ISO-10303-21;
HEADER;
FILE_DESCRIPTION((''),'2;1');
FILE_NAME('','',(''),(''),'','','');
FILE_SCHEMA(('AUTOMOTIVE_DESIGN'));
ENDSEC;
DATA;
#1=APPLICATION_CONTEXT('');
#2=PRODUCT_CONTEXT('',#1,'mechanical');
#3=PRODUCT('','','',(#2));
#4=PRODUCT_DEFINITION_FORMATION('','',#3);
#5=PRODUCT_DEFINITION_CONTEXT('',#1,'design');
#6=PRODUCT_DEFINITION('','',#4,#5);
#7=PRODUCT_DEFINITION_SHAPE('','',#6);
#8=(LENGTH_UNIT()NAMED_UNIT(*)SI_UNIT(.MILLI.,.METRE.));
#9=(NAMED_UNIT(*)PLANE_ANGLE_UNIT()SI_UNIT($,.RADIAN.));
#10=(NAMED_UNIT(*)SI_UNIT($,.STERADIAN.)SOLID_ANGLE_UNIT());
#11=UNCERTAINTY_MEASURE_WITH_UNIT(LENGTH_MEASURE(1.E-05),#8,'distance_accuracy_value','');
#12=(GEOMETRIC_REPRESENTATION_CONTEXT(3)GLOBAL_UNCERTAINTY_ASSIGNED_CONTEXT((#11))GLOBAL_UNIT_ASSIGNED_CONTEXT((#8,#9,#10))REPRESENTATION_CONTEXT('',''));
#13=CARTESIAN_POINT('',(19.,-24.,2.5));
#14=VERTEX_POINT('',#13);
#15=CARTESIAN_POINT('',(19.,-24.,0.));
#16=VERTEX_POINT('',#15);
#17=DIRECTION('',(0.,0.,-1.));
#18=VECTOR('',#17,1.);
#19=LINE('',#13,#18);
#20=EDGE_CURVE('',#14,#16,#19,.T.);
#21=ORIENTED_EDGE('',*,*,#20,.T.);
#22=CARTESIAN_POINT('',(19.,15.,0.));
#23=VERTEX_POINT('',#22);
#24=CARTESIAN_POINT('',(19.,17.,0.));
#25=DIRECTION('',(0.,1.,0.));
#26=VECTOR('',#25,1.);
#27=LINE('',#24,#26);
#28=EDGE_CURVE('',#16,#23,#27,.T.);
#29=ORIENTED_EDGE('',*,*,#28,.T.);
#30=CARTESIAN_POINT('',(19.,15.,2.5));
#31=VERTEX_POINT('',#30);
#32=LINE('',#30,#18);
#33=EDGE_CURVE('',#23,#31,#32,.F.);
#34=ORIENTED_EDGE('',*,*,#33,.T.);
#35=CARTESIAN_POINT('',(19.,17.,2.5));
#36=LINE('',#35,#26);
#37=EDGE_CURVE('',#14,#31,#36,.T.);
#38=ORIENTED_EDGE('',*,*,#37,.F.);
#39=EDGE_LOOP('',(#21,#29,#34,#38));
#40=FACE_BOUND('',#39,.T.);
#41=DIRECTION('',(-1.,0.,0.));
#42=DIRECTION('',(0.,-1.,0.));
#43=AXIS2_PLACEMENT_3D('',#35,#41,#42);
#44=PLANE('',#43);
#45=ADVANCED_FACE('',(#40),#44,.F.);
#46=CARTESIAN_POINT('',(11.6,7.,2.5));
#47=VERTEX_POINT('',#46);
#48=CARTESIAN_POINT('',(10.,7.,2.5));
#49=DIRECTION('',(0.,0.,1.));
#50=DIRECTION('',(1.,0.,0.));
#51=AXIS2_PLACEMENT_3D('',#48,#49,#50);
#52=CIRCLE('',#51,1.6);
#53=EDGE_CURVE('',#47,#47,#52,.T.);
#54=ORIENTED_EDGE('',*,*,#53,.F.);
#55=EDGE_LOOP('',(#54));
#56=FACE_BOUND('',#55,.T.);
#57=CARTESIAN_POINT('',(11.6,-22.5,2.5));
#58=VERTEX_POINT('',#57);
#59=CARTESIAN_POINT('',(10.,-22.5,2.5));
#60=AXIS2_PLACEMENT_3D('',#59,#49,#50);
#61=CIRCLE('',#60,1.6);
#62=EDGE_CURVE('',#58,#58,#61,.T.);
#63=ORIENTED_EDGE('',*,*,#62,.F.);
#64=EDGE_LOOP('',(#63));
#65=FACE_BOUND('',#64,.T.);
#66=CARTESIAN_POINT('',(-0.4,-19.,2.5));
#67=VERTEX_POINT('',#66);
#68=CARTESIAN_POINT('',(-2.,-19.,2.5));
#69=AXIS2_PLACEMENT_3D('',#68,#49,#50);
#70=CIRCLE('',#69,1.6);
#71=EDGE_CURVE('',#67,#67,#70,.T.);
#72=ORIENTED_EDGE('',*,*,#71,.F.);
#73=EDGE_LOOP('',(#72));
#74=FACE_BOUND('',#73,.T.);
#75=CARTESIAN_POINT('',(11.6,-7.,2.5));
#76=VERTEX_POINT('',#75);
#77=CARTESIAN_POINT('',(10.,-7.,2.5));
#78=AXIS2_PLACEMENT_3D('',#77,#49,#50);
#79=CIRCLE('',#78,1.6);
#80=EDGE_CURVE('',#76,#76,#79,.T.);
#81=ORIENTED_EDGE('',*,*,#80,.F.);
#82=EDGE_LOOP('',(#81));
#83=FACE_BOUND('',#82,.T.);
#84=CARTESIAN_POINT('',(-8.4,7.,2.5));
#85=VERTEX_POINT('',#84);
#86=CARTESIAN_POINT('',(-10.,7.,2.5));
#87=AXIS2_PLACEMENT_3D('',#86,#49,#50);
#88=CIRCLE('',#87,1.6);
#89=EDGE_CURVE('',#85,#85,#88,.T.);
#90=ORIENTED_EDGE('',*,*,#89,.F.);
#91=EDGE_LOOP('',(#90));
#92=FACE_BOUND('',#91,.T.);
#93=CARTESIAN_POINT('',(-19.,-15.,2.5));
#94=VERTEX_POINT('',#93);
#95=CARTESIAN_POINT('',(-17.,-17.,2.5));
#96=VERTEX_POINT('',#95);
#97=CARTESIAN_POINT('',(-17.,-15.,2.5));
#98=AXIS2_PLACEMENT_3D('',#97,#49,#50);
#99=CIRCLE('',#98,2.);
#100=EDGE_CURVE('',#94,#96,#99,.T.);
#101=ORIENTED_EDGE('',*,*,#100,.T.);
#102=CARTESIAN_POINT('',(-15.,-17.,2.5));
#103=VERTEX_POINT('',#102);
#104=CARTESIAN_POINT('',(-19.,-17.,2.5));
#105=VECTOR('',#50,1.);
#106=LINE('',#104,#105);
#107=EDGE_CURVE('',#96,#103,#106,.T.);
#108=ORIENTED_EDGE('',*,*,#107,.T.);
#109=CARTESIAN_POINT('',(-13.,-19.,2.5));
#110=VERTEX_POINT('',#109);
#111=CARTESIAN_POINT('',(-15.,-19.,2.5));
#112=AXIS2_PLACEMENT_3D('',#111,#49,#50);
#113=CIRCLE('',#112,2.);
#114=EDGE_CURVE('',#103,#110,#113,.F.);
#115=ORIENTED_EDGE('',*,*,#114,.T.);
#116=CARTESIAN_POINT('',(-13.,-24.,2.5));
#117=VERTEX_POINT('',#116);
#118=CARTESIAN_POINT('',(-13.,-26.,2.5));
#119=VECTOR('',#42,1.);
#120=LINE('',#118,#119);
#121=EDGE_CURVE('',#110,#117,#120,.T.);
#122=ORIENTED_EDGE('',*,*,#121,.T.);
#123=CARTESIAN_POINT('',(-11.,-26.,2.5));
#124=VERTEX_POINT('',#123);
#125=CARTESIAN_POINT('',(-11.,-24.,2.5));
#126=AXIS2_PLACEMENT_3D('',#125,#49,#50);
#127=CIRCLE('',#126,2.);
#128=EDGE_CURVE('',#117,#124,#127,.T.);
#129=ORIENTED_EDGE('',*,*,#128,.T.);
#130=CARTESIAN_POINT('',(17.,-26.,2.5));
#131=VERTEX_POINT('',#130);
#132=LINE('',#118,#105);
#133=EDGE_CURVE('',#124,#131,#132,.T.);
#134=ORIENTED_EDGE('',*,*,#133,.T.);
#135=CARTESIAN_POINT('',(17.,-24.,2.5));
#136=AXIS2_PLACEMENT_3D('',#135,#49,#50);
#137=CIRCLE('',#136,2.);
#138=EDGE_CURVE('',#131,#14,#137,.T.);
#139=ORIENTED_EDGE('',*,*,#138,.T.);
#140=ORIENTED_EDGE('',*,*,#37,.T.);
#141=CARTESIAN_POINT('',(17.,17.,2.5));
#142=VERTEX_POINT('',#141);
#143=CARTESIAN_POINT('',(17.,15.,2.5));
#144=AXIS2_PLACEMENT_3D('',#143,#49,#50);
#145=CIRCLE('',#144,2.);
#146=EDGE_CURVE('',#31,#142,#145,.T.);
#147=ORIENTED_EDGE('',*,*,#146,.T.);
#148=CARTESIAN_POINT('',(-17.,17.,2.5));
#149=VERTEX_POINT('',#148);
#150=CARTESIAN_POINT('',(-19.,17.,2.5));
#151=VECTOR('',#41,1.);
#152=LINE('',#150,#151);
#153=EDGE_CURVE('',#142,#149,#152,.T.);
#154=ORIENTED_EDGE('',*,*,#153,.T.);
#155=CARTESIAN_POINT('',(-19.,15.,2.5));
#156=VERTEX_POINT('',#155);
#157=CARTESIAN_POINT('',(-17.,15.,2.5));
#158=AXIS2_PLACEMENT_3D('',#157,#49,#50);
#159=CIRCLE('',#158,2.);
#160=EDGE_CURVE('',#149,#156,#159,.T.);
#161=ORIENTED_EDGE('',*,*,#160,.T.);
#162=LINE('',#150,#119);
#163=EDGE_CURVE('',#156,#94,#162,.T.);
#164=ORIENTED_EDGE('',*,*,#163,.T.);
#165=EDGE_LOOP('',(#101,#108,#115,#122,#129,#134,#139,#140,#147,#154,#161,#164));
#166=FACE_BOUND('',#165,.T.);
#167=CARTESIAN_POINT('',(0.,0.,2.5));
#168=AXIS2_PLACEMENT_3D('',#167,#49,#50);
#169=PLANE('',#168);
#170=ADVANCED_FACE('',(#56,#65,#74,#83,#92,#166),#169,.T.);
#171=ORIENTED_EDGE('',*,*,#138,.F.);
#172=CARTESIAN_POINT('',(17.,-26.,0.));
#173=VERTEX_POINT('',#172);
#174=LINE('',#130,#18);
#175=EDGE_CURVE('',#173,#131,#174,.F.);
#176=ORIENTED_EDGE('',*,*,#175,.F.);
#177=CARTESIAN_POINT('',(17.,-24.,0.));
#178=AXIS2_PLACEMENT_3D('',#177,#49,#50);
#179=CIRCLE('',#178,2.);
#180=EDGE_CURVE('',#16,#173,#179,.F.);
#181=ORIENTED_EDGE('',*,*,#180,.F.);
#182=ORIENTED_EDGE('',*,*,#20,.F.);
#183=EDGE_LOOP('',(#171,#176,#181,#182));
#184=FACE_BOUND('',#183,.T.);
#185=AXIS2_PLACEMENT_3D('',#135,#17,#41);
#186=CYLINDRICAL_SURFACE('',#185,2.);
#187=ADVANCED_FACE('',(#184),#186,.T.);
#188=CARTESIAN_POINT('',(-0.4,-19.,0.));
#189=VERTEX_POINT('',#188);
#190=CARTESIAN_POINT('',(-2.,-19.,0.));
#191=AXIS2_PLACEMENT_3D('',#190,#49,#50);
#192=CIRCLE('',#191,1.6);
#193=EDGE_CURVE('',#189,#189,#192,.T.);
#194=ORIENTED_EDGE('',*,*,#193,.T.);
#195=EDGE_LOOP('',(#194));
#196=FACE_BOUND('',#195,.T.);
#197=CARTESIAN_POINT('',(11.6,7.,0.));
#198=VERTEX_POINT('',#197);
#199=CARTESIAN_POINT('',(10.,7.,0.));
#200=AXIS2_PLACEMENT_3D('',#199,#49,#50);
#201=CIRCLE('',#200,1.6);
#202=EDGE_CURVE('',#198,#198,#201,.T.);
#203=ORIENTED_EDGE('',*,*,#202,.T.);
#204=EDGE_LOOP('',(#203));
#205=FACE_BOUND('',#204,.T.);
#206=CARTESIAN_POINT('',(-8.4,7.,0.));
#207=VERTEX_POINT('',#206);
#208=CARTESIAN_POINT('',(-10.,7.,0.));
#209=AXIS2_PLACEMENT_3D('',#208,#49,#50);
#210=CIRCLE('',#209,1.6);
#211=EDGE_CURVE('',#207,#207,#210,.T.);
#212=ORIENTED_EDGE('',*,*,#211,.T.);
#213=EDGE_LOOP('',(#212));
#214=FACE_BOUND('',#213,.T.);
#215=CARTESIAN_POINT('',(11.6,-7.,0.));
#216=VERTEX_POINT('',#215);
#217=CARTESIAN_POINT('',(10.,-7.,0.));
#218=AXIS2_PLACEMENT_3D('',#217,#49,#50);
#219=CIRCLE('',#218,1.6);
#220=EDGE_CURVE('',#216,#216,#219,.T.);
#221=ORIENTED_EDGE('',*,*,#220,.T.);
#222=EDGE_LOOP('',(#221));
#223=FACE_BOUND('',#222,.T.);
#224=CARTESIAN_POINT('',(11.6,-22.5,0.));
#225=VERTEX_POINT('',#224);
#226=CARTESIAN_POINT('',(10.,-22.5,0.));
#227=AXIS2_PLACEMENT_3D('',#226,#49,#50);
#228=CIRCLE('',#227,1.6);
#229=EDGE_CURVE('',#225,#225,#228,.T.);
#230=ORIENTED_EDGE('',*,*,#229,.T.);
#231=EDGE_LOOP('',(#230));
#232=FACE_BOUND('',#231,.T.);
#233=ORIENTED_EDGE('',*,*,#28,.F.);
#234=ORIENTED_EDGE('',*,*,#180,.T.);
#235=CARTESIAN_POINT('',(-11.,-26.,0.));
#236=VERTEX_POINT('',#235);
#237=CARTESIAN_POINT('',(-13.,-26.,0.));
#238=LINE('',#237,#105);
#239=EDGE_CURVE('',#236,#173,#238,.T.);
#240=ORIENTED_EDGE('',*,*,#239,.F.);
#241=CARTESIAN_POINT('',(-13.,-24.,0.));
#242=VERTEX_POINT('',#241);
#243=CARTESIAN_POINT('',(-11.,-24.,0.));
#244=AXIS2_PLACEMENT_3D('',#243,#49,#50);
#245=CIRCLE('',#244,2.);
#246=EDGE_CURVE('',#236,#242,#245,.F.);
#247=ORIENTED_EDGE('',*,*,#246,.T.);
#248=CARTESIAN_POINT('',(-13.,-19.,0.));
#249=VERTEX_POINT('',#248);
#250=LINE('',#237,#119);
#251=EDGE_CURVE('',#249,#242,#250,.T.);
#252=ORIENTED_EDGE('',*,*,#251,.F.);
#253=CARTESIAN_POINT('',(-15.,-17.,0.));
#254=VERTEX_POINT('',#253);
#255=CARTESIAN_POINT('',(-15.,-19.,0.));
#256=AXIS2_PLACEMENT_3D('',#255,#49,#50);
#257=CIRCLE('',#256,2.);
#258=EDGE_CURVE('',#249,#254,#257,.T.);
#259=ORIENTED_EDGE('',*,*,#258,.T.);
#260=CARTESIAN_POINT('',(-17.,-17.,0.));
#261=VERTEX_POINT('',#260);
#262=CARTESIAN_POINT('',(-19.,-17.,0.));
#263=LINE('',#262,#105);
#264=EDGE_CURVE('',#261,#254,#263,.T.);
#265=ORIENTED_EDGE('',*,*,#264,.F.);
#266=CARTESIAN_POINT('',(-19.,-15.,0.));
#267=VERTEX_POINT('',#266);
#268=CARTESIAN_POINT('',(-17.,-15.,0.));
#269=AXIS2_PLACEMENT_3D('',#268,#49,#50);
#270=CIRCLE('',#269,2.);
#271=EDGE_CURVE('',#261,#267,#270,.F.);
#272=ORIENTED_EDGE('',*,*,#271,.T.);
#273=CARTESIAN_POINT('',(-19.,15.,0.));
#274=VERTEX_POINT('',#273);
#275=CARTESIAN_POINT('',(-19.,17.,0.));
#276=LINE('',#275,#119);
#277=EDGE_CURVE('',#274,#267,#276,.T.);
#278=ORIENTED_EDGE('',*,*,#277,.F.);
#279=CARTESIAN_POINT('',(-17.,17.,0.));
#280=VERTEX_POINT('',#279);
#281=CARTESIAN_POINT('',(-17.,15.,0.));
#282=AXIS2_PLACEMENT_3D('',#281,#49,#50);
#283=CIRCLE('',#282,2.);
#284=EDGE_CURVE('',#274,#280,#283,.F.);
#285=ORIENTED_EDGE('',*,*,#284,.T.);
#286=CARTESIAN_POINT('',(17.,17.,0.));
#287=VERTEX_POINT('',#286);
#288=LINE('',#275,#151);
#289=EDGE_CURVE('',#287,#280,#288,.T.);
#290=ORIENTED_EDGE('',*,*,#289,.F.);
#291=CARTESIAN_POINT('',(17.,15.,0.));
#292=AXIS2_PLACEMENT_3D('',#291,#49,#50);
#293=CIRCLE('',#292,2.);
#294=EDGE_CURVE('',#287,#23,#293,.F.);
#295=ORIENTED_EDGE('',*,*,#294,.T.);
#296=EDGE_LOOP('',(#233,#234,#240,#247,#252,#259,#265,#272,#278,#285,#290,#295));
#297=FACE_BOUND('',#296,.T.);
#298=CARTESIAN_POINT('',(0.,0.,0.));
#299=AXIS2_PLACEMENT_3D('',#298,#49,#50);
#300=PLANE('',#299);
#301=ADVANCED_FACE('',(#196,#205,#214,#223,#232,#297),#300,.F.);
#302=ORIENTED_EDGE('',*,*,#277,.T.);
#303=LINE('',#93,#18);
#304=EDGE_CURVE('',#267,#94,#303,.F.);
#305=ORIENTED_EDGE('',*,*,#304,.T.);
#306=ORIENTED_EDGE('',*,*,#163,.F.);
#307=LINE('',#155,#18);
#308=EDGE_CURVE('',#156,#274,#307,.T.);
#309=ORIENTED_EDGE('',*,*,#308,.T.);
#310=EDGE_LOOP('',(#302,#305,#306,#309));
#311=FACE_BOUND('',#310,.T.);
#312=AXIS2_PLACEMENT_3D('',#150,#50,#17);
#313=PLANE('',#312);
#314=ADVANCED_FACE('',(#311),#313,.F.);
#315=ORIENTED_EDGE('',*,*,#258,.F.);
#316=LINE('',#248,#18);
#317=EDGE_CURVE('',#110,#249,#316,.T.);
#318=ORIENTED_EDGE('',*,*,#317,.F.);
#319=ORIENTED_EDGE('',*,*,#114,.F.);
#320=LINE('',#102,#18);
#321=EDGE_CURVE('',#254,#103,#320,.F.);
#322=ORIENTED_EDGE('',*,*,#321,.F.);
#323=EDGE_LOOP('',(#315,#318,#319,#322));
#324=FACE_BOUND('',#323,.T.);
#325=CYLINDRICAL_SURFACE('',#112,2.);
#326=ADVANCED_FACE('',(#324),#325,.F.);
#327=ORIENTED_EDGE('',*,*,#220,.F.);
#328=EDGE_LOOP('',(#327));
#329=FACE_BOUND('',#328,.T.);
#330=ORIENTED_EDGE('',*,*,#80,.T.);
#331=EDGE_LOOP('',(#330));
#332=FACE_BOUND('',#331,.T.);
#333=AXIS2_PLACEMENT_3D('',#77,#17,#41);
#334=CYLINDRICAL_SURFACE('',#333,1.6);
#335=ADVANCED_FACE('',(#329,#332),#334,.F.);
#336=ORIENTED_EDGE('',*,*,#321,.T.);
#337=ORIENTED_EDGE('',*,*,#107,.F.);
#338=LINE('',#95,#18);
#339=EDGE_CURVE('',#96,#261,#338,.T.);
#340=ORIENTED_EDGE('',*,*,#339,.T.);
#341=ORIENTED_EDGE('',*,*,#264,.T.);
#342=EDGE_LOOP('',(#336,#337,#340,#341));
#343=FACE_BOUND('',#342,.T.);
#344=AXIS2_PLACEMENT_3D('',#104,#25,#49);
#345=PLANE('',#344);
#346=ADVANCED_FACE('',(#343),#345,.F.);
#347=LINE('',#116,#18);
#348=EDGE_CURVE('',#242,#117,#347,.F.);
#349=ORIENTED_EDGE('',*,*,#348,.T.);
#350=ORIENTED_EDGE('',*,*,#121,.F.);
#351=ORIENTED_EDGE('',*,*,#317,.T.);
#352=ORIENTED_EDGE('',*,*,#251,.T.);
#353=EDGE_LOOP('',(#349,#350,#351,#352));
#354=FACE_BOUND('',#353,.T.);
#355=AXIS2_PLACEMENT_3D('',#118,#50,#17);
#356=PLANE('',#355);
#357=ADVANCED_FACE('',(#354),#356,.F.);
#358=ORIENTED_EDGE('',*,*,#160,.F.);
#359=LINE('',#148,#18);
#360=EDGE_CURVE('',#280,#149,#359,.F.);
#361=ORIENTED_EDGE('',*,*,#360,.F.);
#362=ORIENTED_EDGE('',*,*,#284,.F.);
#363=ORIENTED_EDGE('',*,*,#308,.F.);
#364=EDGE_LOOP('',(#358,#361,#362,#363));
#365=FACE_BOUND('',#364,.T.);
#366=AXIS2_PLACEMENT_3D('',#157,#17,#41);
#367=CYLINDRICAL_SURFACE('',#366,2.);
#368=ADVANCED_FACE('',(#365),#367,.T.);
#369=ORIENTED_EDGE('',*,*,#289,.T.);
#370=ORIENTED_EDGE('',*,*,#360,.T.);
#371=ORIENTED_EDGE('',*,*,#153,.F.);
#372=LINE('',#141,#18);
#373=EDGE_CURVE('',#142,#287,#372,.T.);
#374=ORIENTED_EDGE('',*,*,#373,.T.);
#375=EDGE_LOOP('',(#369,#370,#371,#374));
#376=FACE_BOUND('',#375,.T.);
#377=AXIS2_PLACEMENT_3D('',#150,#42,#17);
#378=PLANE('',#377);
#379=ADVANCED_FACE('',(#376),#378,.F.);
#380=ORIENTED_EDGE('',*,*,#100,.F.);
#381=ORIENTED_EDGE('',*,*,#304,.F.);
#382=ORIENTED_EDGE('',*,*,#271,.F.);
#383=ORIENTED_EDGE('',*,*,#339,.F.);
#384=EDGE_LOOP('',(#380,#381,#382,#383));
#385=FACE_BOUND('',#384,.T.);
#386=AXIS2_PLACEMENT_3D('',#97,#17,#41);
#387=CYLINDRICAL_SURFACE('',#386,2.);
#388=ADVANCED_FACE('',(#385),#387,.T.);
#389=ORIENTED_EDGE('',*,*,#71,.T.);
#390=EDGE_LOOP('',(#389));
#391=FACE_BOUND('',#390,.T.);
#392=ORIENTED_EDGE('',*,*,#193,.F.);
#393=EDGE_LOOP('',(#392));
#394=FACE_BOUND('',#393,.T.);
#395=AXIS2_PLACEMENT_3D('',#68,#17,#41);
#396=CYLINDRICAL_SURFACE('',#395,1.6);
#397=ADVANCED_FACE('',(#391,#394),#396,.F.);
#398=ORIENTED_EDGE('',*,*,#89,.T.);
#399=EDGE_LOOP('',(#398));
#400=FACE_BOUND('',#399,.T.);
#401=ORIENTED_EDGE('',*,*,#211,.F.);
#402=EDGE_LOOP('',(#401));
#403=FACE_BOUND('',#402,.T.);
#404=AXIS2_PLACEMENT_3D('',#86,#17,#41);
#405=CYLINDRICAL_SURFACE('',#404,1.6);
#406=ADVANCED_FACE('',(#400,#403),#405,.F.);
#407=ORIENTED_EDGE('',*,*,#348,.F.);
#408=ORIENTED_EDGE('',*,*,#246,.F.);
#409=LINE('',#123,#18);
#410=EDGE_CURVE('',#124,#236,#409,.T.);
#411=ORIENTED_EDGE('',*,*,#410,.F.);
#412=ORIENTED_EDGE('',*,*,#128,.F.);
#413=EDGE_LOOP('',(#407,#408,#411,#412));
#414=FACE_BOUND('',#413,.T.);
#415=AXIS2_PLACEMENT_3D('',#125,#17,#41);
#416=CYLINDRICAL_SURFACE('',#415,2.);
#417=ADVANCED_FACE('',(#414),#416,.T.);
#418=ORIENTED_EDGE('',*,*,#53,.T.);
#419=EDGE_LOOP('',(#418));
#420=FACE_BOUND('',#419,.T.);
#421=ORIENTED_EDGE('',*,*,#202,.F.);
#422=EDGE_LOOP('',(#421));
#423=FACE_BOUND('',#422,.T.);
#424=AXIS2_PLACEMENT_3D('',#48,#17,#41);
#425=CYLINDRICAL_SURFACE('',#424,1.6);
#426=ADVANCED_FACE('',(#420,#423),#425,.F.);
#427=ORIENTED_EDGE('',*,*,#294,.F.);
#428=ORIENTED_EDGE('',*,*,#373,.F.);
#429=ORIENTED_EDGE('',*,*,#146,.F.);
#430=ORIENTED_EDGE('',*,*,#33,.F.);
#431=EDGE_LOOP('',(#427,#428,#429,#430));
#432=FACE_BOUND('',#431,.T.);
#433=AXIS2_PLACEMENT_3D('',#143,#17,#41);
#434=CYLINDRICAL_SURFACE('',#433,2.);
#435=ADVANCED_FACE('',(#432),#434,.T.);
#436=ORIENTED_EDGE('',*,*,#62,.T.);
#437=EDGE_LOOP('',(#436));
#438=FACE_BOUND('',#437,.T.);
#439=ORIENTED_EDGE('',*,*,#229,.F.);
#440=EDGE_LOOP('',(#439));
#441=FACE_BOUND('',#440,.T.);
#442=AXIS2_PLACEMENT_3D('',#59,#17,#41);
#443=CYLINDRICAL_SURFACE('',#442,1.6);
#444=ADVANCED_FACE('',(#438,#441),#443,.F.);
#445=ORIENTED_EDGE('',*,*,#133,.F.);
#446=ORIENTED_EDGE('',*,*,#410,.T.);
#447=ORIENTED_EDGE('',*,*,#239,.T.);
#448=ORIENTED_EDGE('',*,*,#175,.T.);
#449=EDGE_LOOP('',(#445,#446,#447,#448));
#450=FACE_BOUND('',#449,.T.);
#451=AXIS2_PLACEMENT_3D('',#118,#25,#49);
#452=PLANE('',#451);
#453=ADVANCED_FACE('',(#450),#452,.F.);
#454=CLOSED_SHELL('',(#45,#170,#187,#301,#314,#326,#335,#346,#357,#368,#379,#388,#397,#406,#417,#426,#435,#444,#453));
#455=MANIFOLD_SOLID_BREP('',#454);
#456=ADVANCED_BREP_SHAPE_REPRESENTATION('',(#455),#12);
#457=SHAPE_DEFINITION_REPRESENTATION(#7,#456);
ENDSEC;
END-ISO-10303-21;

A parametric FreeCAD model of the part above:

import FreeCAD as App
import Part
import Sketcher
from FreeCAD import Vector


def edges_at(feature, points):
    """Names of the edges that pass closest to the given points."""
    edges = feature.Shape.Edges
    near = lambda p: min(range(len(edges)), key=lambda i: edges[i].distToShape(Part.Vertex(*p))[0])
    return sorted({f"Edge{near(p) + 1}" for p in points})

doc = App.newDocument("Part")
body = doc.addObject("PartDesign::Body", "Body")

# Sketch on XY plane
sketch1 = doc.addObject("Sketcher::SketchObject", "Sketch")
body.addObject(sketch1)
sketch1.AttachmentSupport = (doc.XY_Plane, [""])
sketch1.MapMode = "FlatFace"
sketch1.addGeometry([
    Part.LineSegment(Vector(19, 17, 0), Vector(-19, 17, 0)),  # 0
    Part.LineSegment(Vector(-19, 17, 0), Vector(-19, -17, 0)),  # 1
    Part.LineSegment(Vector(-19, -17, 0), Vector(-13, -17, 0)),  # 2
    Part.LineSegment(Vector(-13, -17, 0), Vector(-13, -26, 0)),  # 3
    Part.LineSegment(Vector(-13, -26, 0), Vector(19, -26, 0)),  # 4
    Part.LineSegment(Vector(19, -26, 0), Vector(19, 17, 0)),  # 5
    Part.Circle(Vector(10, -22.5, 0), Vector(0, 0, 1), 1.6),  # 6
    Part.Circle(Vector(-2, -19, 0), Vector(0, 0, 1), 1.6),  # 7
    Part.Circle(Vector(10, -7, 0), Vector(0, 0, 1), 1.6),  # 8
    Part.Circle(Vector(10, 7, 0), Vector(0, 0, 1), 1.6),  # 9
    Part.Circle(Vector(-10, 7, 0), Vector(0, 0, 1), 1.6),  # 10
], False)
sketch1.addConstraint([
    Sketcher.Constraint("Coincident", 0, 2, 1, 1),
    Sketcher.Constraint("Coincident", 1, 2, 2, 1),
    Sketcher.Constraint("Coincident", 2, 2, 3, 1),
    Sketcher.Constraint("Coincident", 3, 2, 4, 1),
    Sketcher.Constraint("Coincident", 4, 2, 5, 1),
    Sketcher.Constraint("Coincident", 5, 2, 0, 1),
    Sketcher.Constraint("Horizontal", 0),
    Sketcher.Constraint("Vertical", 1),
    Sketcher.Constraint("Horizontal", 2),
    Sketcher.Constraint("Vertical", 3),
    Sketcher.Constraint("Horizontal", 4),
    Sketcher.Constraint("Vertical", 5),
    Sketcher.Constraint("Equal", 6, 7),
    Sketcher.Constraint("Equal", 7, 8),
    Sketcher.Constraint("Equal", 8, 9),
    Sketcher.Constraint("Equal", 9, 10),
    Sketcher.Constraint("Symmetric", 8, 3, 10, 3, -1, 1),
    Sketcher.Constraint("Symmetric", 1, 2, 5, 2, -1, 1),
    Sketcher.Constraint("Symmetric", 9, 3, 10, 3, -2),
    Sketcher.Constraint("Vertical", 6, 3, 8, 3),
    Sketcher.Constraint("Diameter", 6, 3.2),
    Sketcher.Constraint("DistanceX", 0, 2, 0, 1, 38.0),
    Sketcher.Constraint("DistanceX", 2, 1, 2, 2, 6.0),
    Sketcher.Constraint("DistanceY", 1, 2, 1, 1, 34.0),
    Sketcher.Constraint("DistanceY", 3, 2, 3, 1, 9.0),
    Sketcher.Constraint("DistanceX", -1, 1, 6, 3, 10.0),
    Sketcher.Constraint("DistanceX", 7, 3, -1, 1, 2.0),
    Sketcher.Constraint("DistanceY", 7, 3, -1, 1, 19.0),
    Sketcher.Constraint("DistanceY", 8, 3, -1, 1, 7.0),
    Sketcher.Constraint("DistanceY", 6, 3, -1, 1, 22.5),
])
pad1 = doc.addObject("PartDesign::Pad", "Pad")
body.addObject(pad1)
pad1.Profile = sketch1
pad1.Length = 2.5
doc.recompute()

fillet = doc.addObject("PartDesign::Fillet", "Fillet")
body.addObject(fillet)
fillet.Base = (pad1, edges_at(pad1, [
    (-19, 17, 1.25),
    (19, 17, 1.25),
    (19, -26, 1.25),
    (-13, -26, 1.25),
    (-13, -17, 1.25),
    (-19, -17, 1.25),
]))
fillet.Radius = 2

doc.recompute()
